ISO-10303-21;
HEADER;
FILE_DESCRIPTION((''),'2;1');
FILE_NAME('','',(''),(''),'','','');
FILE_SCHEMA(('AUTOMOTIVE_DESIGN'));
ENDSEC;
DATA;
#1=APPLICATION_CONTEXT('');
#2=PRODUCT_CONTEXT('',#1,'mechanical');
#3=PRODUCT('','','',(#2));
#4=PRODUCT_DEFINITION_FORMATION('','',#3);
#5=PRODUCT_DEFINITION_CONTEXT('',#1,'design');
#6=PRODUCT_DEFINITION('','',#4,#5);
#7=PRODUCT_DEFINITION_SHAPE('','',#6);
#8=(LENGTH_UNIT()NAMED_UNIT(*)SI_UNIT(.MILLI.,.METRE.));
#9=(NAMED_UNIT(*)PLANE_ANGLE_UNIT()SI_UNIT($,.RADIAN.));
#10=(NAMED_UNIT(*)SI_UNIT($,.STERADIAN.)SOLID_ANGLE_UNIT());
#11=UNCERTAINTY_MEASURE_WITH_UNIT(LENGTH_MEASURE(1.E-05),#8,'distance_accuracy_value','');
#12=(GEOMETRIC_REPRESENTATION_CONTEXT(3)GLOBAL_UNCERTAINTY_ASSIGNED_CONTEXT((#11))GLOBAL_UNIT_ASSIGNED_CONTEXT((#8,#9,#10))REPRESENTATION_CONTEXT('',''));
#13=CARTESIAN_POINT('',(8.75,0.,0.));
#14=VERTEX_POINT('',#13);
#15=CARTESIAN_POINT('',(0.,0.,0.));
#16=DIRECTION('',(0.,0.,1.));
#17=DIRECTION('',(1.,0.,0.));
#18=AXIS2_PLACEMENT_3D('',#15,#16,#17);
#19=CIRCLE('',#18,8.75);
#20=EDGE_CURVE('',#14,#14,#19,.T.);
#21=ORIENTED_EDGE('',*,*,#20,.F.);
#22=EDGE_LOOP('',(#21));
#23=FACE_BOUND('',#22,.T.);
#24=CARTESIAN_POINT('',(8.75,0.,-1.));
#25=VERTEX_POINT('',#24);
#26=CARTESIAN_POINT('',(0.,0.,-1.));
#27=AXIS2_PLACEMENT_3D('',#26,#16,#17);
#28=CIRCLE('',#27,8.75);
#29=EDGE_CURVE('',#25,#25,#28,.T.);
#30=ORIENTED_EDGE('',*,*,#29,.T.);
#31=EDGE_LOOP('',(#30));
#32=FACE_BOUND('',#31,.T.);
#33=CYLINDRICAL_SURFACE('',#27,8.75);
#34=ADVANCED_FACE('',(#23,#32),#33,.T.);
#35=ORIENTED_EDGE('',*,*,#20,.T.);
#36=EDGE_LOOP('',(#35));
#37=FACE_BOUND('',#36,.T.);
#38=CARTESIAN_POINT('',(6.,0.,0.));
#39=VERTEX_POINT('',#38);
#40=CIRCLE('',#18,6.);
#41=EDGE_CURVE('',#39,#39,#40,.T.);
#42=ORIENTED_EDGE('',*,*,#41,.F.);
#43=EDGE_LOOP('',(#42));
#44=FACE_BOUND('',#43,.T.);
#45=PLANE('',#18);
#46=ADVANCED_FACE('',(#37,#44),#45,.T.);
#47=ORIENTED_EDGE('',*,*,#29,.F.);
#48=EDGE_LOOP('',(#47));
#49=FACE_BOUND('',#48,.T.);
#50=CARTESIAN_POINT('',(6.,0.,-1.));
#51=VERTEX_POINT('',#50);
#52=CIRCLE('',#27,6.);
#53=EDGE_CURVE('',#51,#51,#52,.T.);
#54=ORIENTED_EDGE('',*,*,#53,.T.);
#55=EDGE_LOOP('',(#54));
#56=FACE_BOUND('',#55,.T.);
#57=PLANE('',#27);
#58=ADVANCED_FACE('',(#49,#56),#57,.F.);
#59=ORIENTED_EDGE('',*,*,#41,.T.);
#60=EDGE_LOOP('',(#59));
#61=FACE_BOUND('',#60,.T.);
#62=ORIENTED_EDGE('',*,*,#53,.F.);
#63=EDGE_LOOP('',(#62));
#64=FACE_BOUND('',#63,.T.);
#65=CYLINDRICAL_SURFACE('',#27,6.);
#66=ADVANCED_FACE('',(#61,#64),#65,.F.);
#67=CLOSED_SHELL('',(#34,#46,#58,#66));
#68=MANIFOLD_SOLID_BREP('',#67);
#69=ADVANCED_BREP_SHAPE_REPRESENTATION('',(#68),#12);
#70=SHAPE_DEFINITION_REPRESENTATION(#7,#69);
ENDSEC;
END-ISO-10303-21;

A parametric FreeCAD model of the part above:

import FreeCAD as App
import Part
import Sketcher
from FreeCAD import Vector
Q = App.Units.Quantity

doc = App.newDocument("Part")
body = doc.addObject("PartDesign::Body", "Body")

# Sketch on XY plane
sketch1 = body.newObject("Sketcher::SketchObject", "Sketch")
sketch1.AttachmentSupport = (doc.getObject("XY_Plane"), [""])
sketch1.MapMode = "FlatFace"
sketch1.addGeometry([
    Part.Circle(Vector(0, 0, 0), Vector(0, 0, 1), 8.75),
    Part.Circle(Vector(0, 0, 0), Vector(0, 0, 1), 6),
], False)
sketch1.addConstraint([
    Sketcher.Constraint("Coincident", 0, 3, -1, 1),
    Sketcher.Constraint("Coincident", 1, 3, -1, 1),
    Sketcher.Constraint("Diameter", 1, Q("12 mm")),
    Sketcher.Constraint("Diameter", 0, Q("17.5 mm")),
])
pad1 = body.newObject("PartDesign::Pad", "Pad")
pad1.Profile = sketch1
pad1.Length = 1
pad1.Reversed = True

doc.recompute()
